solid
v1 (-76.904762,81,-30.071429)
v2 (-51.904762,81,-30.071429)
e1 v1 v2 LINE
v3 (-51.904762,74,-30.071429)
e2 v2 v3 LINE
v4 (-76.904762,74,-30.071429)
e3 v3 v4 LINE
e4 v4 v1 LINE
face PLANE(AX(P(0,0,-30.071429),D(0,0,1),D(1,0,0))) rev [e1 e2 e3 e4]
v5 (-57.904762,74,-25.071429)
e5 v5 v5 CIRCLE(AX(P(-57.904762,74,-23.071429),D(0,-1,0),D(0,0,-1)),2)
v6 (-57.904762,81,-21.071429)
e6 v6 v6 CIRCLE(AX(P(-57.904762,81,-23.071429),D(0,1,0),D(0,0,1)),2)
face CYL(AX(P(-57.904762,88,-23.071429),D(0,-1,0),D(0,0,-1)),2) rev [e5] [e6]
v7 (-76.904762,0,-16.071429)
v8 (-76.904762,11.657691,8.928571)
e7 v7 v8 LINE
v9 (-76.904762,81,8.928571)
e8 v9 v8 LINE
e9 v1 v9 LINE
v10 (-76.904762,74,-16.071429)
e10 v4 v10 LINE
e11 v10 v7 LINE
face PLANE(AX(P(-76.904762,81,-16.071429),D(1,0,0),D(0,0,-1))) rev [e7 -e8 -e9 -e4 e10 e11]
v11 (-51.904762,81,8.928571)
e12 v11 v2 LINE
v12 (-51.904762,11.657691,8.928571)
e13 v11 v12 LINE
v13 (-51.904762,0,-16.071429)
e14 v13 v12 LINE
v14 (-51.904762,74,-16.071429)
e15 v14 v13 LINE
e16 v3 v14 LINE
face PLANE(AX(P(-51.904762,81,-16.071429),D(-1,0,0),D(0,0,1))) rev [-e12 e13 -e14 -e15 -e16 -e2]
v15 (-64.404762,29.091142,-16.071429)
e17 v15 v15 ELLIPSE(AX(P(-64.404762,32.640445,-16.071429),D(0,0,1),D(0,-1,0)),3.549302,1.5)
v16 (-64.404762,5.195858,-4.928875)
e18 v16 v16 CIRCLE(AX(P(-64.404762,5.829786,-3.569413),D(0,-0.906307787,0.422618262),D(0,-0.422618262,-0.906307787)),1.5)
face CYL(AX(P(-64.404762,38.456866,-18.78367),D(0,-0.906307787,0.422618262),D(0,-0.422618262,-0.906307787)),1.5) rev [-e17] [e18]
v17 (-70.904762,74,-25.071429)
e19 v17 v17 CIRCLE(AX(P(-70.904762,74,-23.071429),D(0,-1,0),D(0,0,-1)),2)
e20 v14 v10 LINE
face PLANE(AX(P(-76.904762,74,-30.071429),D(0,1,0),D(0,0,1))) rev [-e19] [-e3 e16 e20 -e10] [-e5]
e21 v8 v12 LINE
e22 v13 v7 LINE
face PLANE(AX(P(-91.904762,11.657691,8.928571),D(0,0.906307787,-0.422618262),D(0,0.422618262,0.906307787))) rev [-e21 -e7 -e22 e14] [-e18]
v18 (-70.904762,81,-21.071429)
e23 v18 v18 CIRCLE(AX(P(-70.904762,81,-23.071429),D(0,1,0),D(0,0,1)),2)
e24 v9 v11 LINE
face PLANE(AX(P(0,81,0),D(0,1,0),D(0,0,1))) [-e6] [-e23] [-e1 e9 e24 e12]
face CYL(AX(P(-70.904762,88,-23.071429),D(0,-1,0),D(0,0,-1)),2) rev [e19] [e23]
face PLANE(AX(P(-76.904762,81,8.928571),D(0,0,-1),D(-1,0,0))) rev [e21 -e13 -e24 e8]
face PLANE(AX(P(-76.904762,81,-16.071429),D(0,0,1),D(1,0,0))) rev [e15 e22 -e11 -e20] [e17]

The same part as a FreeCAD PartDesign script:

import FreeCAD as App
import Part
import Sketcher
Q = App.Units.Quantity

doc = App.newDocument("Part")
body = doc.addObject("PartDesign::Body", "Body")

sketch1 = body.newObject("Sketcher::SketchObject", "Sketch")
sketch1.AttachmentSupport = (doc.getObject("XZ_Plane"), [""])
sketch1.MapMode = "FlatFace"
sketch1.addGeometry([
    Part.LineSegment(App.Vector(-77, -16, 0), App.Vector(-77, 9, 0)),
    Part.LineSegment(App.Vector(-77, 9, 0), App.Vector(-52, 9, 0)),
    Part.LineSegment(App.Vector(-52, 9, 0), App.Vector(-52, -16, 0)),
    Part.LineSegment(App.Vector(-52, -16, 0), App.Vector(-77, -16, 0)),
], False)
sketch1.addConstraint([
    Sketcher.Constraint("Coincident", 0, 2, 1, 1),
    Sketcher.Constraint("Coincident", 1, 2, 2, 1),
    Sketcher.Constraint("Coincident", 2, 2, 3, 1),
    Sketcher.Constraint("Coincident", 3, 2, 0, 1),
    Sketcher.Constraint("Vertical", 0),
    Sketcher.Constraint("Horizontal", 1),
    Sketcher.Constraint("Vertical", 2),
    Sketcher.Constraint("Horizontal", 3),
    Sketcher.Constraint("Equal", 3, 0),
    Sketcher.Constraint("DistanceX", 1, 1, 1, 2, 25.0),
    Sketcher.Constraint("DistanceX", 0, 2, -1, 1, 76.904762),
    Sketcher.Constraint("DistanceY", -1, 1, 0, 2, 8.928571),
])
pad1 = body.newObject("PartDesign::Pad", "Pad")
pad1.Profile = sketch1
pad1.Length = 81
pad1.Reversed = True

sketch2 = body.newObject("Sketcher::SketchObject", "Sketch001")
sketch2.AttachmentSupport = (doc.getObject("YZ_Plane"), [""])
sketch2.MapMode = "FlatFace"
sketch2.AttachmentOffset = App.Placement(App.Vector(0, 0, -51.904762), App.Rotation())
sketch2.addGeometry([
    Part.LineSegment(App.Vector(0, 9, 0), App.Vector(0, -16, 0)),
    Part.LineSegment(App.Vector(0, -16, 0), App.Vector(12, 9, 0)),
    Part.LineSegment(App.Vector(12, 9, 0), App.Vector(0, 9, 0)),
], False)
sketch2.addConstraint([
    Sketcher.Constraint("Coincident", 0, 2, 1, 1),
    Sketcher.Constraint("Coincident", 1, 2, 2, 1),
    Sketcher.Constraint("Coincident", 2, 2, 0, 1),
    Sketcher.Constraint("Vertical", 0),
    Sketcher.Constraint("Horizontal", 2),
    Sketcher.Constraint("PointOnObject", 0, 2, -2),
    Sketcher.Constraint("DistanceY", 0, 2, 0, 1, 25.0),
    Sketcher.Constraint("Angle", 1, Q("65 deg")),
    Sketcher.Constraint("DistanceY", 0, 2, -1, 1, 16.071429),
])
pocket1 = body.newObject("PartDesign::Pocket", "Pocket")
pocket1.Profile = sketch2
pocket1.Length = 40

sketch3 = body.newObject("Sketcher::SketchObject", "Sketch002")
sketch3.Placement = App.Placement(App.Vector(0, 6.155714, -2.870457), App.Rotation(App.Vector(1, 0, 0), App.Vector(0, 0.422618262, 0.906307787), App.Vector(0, -0.906307787, 0.422618262), "ZXY"))
sketch3.addGeometry(Part.Circle(App.Vector(-64.4, -0.8, 0), App.Vector(0, 0, 1), 1.5), False)
sketch3.addConstraint([
    Sketcher.Constraint("Diameter", 0, 3.0),
    Sketcher.Constraint("DistanceX", 0, 3, -1, 1, 64.404762),
    Sketcher.Constraint("DistanceY", 0, 3, -1, 1, 0.771213),
])
pocket2 = body.newObject("PartDesign::Pocket", "Pocket001")
pocket2.Profile = sketch3
pocket2.Length = 36

sketch4 = body.newObject("Sketcher::SketchObject", "Sketch003")
sketch4.AttachmentSupport = (doc.getObject("XY_Plane"), [""])
sketch4.MapMode = "FlatFace"
sketch4.AttachmentOffset = App.Placement(App.Vector(0, 0, -16.071429), App.Rotation())
sketch4.addGeometry([
    Part.LineSegment(App.Vector(-52, 81, 0), App.Vector(-52, 74, 0)),
    Part.LineSegment(App.Vector(-52, 74, 0), App.Vector(-77, 74, 0)),
    Part.LineSegment(App.Vector(-77, 74, 0), App.Vector(-77, 81, 0)),
    Part.LineSegment(App.Vector(-77, 81, 0), App.Vector(-52, 81, 0)),
], False)
sketch4.addConstraint([
    Sketcher.Constraint("Coincident", 0, 2, 1, 1),
    Sketcher.Constraint("Coincident", 1, 2, 2, 1),
    Sketcher.Constraint("Coincident", 2, 2, 3, 1),
    Sketcher.Constraint("Coincident", 3, 2, 0, 1),
    Sketcher.Constraint("Vertical", 0),
    Sketcher.Constraint("Horizontal", 1),
    Sketcher.Constraint("Vertical", 2),
    Sketcher.Constraint("Horizontal", 3),
    Sketcher.Constraint("DistanceX", 1, 2, 1, 1, 25.0),
    Sketcher.Constraint("DistanceY", 0, 2, 0, 1, 7.0),
    Sketcher.Constraint("DistanceY", -1, 1, 0, 2, 74.0),
    Sketcher.Constraint("DistanceX", 0, 2, -1, 1, 51.904762),
])
pad2 = body.newObject("PartDesign::Pad", "Pad001")
pad2.Profile = sketch4
pad2.Length = 14
pad2.Reversed = True

sketch5 = body.newObject("Sketcher::SketchObject", "Sketch004")
sketch5.AttachmentSupport = (doc.getObject("XZ_Plane"), [""])
sketch5.MapMode = "FlatFace"
sketch5.AttachmentOffset = App.Placement(App.Vector(0, 0, -74), App.Rotation())
sketch5.addGeometry([
    Part.Circle(App.Vector(-70.9, -23.1, 0), App.Vector(0, 0, 1), 2),
    Part.Circle(App.Vector(-57.9, -23.1, 0), App.Vector(0, 0, 1), 2),
], False)
sketch5.addConstraint([
    Sketcher.Constraint("Equal", 0, 1),
    Sketcher.Constraint("Horizontal", 0, 3, 1, 3),
    Sketcher.Constraint("Diameter", 0, 4.0),
    Sketcher.Constraint("DistanceX", 0, 3, 1, 3, 13.0),
    Sketcher.Constraint("DistanceX", 0, 3, -1, 1, 70.904762),
    Sketcher.Constraint("DistanceY", 0, 3, -1, 1, 23.071429),
])
pocket3 = body.newObject("PartDesign::Pocket", "Pocket002")
pocket3.Profile = sketch5
pocket3.Length = 14

doc.recompute()
